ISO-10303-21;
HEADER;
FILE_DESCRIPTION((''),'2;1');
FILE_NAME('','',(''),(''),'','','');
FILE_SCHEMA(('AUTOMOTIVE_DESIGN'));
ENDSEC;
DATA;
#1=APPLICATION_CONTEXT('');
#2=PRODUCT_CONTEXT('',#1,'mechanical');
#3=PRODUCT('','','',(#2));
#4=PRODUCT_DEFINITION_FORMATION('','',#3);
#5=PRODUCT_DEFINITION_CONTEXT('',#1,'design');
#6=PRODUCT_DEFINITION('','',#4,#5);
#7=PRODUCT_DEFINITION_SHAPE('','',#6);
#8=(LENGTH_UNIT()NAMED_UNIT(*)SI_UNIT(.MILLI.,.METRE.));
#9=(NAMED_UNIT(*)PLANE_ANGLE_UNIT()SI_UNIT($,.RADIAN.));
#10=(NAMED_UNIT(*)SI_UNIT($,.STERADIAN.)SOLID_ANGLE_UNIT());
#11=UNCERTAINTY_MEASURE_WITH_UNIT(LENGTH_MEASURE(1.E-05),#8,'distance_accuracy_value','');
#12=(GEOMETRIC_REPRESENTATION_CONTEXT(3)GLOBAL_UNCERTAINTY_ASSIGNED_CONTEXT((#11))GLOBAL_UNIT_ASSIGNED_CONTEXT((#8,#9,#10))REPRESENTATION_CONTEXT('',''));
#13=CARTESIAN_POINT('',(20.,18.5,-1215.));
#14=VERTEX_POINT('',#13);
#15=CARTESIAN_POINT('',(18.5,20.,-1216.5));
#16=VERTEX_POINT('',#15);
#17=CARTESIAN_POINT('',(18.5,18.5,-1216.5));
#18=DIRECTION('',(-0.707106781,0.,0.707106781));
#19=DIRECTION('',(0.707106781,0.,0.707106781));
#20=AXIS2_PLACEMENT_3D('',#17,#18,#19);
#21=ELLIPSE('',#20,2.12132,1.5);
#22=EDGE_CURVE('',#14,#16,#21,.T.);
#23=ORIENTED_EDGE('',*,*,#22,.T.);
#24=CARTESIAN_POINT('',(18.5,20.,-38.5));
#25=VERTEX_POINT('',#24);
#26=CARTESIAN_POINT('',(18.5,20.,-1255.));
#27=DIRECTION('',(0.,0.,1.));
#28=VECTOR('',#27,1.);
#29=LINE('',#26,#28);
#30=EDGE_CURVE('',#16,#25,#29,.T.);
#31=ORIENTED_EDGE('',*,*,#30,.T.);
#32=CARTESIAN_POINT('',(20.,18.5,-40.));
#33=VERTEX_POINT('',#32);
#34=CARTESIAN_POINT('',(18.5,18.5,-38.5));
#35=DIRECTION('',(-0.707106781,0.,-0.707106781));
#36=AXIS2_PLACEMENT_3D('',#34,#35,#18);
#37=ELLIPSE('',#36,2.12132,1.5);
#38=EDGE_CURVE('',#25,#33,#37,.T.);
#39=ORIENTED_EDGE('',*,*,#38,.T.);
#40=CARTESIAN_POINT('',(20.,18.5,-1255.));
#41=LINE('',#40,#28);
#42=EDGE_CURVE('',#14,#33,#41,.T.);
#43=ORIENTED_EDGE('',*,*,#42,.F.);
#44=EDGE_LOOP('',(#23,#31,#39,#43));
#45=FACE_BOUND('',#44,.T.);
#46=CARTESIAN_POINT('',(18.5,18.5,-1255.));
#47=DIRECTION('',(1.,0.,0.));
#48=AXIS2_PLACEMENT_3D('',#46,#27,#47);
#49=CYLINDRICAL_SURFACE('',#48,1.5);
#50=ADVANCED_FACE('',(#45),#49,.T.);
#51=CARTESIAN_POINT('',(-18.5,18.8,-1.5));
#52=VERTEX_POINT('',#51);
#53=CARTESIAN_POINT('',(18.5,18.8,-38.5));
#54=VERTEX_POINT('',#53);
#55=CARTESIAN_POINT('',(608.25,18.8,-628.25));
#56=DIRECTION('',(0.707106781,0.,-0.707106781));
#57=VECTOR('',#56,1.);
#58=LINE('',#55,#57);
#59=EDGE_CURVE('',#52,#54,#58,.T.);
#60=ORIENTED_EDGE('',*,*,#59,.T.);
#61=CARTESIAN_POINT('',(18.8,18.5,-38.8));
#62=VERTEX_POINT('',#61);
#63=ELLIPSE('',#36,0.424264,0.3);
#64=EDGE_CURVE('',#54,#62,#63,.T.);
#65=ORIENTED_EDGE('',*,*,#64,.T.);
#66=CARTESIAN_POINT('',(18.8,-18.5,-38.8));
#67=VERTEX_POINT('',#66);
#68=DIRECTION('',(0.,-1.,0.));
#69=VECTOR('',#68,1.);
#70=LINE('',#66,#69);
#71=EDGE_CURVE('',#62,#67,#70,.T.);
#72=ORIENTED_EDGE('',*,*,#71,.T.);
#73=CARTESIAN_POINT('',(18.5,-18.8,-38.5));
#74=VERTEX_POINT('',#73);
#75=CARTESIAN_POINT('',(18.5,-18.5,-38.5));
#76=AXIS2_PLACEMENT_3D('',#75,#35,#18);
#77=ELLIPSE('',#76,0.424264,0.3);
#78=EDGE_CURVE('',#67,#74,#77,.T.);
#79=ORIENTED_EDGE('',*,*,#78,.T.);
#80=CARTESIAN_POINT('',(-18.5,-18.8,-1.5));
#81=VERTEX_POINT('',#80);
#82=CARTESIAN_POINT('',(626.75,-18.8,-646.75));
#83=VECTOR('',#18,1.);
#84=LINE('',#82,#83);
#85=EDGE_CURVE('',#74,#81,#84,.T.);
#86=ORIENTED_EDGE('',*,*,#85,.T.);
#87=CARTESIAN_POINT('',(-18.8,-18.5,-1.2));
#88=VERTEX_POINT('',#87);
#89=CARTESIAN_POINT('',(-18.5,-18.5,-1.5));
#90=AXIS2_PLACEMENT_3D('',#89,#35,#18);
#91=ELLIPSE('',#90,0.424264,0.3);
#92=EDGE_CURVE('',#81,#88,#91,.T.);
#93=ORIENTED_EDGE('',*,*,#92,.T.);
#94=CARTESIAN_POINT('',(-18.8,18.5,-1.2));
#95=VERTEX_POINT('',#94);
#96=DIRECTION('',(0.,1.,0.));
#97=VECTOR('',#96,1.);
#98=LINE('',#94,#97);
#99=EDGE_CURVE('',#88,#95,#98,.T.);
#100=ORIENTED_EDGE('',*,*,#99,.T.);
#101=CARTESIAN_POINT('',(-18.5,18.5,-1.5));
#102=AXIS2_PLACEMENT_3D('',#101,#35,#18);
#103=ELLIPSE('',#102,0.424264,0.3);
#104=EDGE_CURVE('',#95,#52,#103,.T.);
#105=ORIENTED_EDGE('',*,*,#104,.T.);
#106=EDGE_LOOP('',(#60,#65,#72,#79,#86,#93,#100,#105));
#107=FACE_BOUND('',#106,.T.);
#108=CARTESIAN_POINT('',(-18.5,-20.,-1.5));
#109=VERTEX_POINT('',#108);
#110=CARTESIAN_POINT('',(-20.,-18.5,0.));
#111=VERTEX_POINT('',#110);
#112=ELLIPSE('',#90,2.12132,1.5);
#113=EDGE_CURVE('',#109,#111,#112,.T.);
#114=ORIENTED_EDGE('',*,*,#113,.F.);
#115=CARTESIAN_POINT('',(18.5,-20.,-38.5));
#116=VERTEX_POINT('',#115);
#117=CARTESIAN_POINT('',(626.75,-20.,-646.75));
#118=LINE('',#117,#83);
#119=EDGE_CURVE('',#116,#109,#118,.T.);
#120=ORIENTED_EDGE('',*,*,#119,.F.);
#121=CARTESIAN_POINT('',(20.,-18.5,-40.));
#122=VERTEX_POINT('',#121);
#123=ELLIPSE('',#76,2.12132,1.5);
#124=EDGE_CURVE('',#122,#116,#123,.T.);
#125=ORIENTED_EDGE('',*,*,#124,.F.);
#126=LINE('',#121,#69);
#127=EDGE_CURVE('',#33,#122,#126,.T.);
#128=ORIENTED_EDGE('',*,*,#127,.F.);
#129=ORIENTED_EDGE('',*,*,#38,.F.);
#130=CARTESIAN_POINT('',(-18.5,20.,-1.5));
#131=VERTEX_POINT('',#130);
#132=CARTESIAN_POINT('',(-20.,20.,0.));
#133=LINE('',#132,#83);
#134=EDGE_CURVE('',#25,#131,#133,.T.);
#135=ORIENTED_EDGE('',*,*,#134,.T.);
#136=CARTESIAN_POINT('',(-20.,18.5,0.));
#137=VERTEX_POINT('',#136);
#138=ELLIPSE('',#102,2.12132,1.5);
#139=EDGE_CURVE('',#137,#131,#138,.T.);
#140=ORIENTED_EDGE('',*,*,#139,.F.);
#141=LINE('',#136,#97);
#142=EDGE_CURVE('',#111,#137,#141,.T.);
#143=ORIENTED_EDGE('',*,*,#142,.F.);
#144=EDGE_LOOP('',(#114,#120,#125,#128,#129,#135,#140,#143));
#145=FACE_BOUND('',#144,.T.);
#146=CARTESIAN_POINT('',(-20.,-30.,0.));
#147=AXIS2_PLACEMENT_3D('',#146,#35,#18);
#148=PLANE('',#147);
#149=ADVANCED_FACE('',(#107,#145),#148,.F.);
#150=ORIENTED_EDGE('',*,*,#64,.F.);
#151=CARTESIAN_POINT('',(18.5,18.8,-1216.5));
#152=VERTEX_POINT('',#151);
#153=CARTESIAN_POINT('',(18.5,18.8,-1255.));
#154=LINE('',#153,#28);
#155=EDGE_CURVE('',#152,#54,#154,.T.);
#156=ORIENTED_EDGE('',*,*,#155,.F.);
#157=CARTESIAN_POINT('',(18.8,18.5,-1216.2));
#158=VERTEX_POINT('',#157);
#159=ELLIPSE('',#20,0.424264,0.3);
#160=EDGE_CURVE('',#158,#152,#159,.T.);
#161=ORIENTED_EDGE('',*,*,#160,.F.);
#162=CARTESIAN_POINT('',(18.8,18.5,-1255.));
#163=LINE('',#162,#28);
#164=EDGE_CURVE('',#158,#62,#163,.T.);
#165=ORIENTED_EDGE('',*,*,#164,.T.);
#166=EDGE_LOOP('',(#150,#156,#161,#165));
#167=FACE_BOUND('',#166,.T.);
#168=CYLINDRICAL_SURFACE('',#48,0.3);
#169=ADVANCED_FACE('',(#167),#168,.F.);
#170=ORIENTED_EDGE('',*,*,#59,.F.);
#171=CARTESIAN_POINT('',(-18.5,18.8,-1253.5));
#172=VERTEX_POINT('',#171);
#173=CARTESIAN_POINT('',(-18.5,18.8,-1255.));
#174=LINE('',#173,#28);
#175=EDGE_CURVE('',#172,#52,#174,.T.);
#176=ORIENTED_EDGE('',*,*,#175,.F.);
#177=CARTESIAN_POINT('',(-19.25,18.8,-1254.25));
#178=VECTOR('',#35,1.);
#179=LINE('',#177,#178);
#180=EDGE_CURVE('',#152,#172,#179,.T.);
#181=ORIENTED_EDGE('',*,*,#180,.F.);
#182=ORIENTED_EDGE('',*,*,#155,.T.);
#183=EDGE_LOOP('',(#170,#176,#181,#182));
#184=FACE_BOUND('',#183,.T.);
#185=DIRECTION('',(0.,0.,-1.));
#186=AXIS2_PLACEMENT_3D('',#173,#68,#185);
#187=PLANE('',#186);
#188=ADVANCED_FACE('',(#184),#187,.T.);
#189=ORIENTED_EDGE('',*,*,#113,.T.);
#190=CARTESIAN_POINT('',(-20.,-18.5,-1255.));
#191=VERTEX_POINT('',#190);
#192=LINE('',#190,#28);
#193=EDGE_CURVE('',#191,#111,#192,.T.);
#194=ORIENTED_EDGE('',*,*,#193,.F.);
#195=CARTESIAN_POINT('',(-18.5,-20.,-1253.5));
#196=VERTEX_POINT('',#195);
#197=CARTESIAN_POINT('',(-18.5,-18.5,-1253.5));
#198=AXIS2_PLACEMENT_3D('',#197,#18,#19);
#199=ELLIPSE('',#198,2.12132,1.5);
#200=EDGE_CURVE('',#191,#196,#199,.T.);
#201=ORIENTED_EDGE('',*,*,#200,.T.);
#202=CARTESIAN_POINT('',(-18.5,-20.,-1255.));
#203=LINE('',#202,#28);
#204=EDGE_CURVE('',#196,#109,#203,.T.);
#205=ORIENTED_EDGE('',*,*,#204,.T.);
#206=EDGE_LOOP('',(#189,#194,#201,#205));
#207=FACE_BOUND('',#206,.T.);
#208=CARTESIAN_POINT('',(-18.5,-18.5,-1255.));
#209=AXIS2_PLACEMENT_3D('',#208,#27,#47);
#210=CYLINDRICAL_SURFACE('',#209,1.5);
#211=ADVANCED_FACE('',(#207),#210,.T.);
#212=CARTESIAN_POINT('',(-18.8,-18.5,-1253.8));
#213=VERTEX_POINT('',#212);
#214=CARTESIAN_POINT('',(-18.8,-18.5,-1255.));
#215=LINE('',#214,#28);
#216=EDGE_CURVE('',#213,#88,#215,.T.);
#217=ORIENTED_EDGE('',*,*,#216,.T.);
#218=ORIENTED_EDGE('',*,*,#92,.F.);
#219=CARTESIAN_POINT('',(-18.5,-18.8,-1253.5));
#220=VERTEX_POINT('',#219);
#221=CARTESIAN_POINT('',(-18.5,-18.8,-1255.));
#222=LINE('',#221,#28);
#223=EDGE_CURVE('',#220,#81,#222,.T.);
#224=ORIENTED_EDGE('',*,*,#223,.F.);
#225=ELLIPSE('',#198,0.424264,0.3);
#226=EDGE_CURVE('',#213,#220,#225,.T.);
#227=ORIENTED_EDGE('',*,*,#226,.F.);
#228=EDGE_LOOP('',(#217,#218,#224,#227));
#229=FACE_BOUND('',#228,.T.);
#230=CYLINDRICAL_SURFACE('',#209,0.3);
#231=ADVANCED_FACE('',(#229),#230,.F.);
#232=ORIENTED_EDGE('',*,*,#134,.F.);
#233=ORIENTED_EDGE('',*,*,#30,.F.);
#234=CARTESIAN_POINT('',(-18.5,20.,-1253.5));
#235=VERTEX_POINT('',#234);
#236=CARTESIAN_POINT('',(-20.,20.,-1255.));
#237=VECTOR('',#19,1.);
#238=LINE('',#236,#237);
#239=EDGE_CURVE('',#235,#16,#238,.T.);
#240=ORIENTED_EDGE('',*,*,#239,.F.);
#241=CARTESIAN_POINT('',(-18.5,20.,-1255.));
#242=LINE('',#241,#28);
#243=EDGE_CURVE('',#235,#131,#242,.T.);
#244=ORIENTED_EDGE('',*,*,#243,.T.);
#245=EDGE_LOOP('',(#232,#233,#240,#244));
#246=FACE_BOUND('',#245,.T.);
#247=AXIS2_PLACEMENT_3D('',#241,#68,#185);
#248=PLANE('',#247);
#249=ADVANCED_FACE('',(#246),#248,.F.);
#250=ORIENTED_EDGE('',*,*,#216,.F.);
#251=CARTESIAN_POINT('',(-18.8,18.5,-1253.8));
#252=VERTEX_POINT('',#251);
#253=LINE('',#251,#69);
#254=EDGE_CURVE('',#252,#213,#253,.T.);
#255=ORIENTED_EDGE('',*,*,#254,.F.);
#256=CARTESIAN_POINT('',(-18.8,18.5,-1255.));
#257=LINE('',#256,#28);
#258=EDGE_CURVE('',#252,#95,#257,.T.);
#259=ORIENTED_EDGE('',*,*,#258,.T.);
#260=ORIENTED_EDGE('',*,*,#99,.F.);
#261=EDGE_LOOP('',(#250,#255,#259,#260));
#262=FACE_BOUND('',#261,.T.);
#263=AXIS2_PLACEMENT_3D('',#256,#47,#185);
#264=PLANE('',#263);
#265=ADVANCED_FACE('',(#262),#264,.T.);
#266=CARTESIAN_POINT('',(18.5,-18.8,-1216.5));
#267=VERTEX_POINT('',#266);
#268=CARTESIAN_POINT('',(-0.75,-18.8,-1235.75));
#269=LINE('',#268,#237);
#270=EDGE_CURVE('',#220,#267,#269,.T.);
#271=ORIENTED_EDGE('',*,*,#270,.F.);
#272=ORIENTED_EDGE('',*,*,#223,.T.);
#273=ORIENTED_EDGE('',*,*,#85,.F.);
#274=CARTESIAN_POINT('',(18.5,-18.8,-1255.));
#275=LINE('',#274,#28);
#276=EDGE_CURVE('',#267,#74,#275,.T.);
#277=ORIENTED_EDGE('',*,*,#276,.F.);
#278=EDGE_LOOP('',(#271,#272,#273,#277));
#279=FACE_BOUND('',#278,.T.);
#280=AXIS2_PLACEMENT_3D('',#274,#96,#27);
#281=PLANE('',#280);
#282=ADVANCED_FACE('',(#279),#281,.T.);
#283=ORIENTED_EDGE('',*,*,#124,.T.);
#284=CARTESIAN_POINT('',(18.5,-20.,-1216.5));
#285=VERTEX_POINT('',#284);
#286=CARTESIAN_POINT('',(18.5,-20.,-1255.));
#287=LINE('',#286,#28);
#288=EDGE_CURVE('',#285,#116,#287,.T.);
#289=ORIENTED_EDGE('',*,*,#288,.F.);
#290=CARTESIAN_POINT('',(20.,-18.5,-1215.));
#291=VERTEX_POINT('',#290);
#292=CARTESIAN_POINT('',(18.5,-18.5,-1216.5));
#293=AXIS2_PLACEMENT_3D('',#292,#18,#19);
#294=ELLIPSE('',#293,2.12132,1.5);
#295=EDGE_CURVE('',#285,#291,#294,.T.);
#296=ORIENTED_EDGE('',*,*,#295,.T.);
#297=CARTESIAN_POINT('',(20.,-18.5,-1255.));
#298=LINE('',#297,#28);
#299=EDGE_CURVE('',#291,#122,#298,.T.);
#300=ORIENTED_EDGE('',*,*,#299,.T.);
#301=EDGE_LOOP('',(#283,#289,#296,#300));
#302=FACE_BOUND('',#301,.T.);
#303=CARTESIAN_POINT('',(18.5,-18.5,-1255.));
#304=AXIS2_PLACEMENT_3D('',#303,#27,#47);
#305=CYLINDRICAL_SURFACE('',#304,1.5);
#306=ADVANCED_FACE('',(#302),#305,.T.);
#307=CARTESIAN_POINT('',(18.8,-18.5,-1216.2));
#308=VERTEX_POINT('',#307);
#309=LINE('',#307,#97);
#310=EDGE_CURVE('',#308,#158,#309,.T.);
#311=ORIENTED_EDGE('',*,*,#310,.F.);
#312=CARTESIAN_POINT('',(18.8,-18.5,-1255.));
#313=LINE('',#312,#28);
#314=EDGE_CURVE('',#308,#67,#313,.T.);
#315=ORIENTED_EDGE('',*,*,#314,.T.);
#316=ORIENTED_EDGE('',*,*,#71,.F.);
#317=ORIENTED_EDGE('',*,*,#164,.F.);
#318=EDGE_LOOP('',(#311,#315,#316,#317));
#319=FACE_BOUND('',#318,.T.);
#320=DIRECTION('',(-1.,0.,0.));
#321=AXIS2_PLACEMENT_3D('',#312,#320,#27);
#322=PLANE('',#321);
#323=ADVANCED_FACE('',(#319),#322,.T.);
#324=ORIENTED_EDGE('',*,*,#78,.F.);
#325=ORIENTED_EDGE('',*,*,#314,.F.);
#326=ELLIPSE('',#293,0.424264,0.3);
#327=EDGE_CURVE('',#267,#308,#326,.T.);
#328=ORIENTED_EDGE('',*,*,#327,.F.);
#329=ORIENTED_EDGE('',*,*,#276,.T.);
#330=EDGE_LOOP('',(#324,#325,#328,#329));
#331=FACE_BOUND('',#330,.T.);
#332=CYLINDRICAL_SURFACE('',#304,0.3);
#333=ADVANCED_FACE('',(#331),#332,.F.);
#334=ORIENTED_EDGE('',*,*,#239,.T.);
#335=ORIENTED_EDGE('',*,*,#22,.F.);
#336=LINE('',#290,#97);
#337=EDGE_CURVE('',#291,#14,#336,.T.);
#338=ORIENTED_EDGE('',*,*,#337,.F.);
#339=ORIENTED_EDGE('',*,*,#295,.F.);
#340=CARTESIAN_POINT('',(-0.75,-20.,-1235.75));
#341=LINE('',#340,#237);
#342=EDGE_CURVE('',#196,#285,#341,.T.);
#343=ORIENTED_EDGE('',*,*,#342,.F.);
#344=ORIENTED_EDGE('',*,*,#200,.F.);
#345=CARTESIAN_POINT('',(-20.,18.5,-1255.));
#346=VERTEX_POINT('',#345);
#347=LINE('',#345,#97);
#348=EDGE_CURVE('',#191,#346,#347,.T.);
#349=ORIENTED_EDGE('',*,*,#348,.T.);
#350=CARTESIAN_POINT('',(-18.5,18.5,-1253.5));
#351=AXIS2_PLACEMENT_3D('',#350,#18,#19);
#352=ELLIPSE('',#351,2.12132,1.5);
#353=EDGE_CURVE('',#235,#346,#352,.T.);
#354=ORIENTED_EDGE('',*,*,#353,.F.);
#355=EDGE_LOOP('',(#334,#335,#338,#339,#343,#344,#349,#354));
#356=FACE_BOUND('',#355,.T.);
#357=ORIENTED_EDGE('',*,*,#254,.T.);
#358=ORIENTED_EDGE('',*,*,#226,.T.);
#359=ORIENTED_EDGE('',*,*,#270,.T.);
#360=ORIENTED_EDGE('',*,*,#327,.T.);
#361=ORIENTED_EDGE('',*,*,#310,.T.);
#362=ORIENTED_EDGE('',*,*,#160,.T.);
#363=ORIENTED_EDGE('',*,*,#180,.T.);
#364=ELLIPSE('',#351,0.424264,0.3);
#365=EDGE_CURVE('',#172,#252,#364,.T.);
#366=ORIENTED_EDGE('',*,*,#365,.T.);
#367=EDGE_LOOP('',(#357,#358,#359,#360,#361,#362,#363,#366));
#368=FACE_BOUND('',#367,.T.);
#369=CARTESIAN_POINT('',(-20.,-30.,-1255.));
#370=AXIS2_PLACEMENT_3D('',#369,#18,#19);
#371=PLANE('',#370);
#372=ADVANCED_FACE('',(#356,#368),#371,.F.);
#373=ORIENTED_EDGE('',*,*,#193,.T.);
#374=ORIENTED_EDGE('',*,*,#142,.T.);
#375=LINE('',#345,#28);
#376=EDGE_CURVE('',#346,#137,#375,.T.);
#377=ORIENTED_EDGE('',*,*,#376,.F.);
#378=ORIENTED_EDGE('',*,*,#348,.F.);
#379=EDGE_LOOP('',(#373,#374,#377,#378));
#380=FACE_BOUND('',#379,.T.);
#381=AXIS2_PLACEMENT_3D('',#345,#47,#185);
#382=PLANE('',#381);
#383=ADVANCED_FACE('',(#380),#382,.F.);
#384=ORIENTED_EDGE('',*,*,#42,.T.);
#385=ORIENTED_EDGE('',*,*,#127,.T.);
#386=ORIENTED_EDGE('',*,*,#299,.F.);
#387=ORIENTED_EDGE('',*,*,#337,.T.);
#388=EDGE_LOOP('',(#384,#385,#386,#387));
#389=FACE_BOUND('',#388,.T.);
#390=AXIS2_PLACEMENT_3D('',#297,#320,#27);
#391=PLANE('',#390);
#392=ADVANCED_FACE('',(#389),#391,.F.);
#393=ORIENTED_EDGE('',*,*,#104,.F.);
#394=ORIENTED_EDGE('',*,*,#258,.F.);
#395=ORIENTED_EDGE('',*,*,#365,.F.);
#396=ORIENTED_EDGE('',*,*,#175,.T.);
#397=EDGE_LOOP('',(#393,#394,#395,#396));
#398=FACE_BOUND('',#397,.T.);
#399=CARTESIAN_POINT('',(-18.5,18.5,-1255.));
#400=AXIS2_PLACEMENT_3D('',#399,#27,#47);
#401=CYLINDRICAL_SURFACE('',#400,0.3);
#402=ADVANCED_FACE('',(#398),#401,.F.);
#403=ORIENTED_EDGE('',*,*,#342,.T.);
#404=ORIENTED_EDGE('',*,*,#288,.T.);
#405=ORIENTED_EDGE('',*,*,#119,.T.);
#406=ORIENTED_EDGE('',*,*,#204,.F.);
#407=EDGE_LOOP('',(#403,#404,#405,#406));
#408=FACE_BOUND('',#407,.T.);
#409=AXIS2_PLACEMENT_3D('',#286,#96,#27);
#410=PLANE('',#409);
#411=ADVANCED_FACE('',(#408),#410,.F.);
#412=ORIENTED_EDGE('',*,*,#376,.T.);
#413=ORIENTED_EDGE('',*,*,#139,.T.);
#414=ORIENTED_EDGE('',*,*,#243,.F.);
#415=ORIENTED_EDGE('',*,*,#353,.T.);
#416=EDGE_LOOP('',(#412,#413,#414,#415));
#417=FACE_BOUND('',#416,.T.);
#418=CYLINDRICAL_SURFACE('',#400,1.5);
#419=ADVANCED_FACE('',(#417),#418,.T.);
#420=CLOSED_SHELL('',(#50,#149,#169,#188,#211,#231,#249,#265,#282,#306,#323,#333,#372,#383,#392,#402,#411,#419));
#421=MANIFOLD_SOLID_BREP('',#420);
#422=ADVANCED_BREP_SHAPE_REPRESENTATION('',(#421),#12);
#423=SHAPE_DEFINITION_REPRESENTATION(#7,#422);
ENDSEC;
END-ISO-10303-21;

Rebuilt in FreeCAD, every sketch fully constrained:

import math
import FreeCAD as App
import Part
import Sketcher

V = App.Vector


def add_polygon(sketch, points):
    """Adds a closed chain of lines whose ends are joined by coincident constraints."""
    first, n = sketch.GeometryCount, len(points)
    for a, b in zip(points, points[1:] + points[:1]):
        sketch.addGeometry(Part.LineSegment(App.Vector(*a, 0), App.Vector(*b, 0)), False)
    for i in range(n):
        sketch.addConstraint(Sketcher.Constraint("Coincident", first + i, 2, first + (i + 1) % n, 1))

doc = App.newDocument("Part")
body = doc.addObject("PartDesign::Body", "Body")

# Sketch on XY plane
sketch1 = body.newObject("Sketcher::SketchObject", "Sketch")
sketch1.AttachmentSupport = (doc.getObject("XY_Plane"), [""])
sketch1.MapMode = "FlatFace"
sketch1.addGeometry(Part.LineSegment(V(18.5, -20, 0), V(-18.5, -20, 0)), False)
sketch1.addGeometry(Part.ArcOfCircle(Part.Circle(V(-18.5, -18.5, 0), V(0, 0, 1), 1.5), math.radians(180), math.radians(270)), False)
sketch1.addGeometry(Part.LineSegment(V(-20, -18.5, 0), V(-20, 18.5, 0)), False)
sketch1.addGeometry(Part.ArcOfCircle(Part.Circle(V(-18.5, 18.5, 0), V(0, 0, 1), 1.5), math.radians(90), math.radians(180)), False)
sketch1.addGeometry(Part.LineSegment(V(-18.5, 20, 0), V(18.5, 20, 0)), False)
sketch1.addGeometry(Part.ArcOfCircle(Part.Circle(V(18.5, 18.5, 0), V(0, 0, 1), 1.5), math.radians(0), math.radians(90)), False)
sketch1.addGeometry(Part.LineSegment(V(20, 18.5, 0), V(20, -18.5, 0)), False)
sketch1.addGeometry(Part.ArcOfCircle(Part.Circle(V(18.5, -18.5, 0), V(0, 0, 1), 1.5), math.radians(-90), math.radians(0)), False)
sketch1.addGeometry(Part.LineSegment(V(-18.5, -18.8, 0), V(18.5, -18.8, 0)), False)
sketch1.addGeometry(Part.ArcOfCircle(Part.Circle(V(18.5, -18.5, 0), V(0, 0, 1), 0.3), math.radians(-90), math.radians(0)), False)
sketch1.addGeometry(Part.LineSegment(V(18.8, -18.5, 0), V(18.8, 18.5, 0)), False)
sketch1.addGeometry(Part.ArcOfCircle(Part.Circle(V(18.5, 18.5, 0), V(0, 0, 1), 0.3), math.radians(0), math.radians(90)), False)
sketch1.addGeometry(Part.LineSegment(V(18.5, 18.8, 0), V(-18.5, 18.8, 0)), False)
sketch1.addGeometry(Part.ArcOfCircle(Part.Circle(V(-18.5, 18.5, 0), V(0, 0, 1), 0.3), math.radians(90), math.radians(180)), False)
sketch1.addGeometry(Part.LineSegment(V(-18.8, 18.5, 0), V(-18.8, -18.5, 0)), False)
sketch1.addGeometry(Part.ArcOfCircle(Part.Circle(V(-18.5, -18.5, 0), V(0, 0, 1), 0.3), math.radians(-180), math.radians(-90)), False)
sketch1.addConstraint(Sketcher.Constraint("Tangent", 0, 2, 1, 2))
sketch1.addConstraint(Sketcher.Constraint("Tangent", 1, 1, 2, 1))
sketch1.addConstraint(Sketcher.Constraint("Tangent", 2, 2, 3, 2))
sketch1.addConstraint(Sketcher.Constraint("Tangent", 3, 1, 4, 1))
sketch1.addConstraint(Sketcher.Constraint("Tangent", 4, 2, 5, 2))
sketch1.addConstraint(Sketcher.Constraint("Tangent", 5, 1, 6, 1))
sketch1.addConstraint(Sketcher.Constraint("Tangent", 6, 2, 7, 2))
sketch1.addConstraint(Sketcher.Constraint("Tangent", 7, 1, 0, 1))
sketch1.addConstraint(Sketcher.Constraint("Tangent", 8, 2, 9, 1))
sketch1.addConstraint(Sketcher.Constraint("Tangent", 9, 2, 10, 1))
sketch1.addConstraint(Sketcher.Constraint("Tangent", 10, 2, 11, 1))
sketch1.addConstraint(Sketcher.Constraint("Tangent", 11, 2, 12, 1))
sketch1.addConstraint(Sketcher.Constraint("Tangent", 12, 2, 13, 1))
sketch1.addConstraint(Sketcher.Constraint("Tangent", 13, 2, 14, 1))
sketch1.addConstraint(Sketcher.Constraint("Tangent", 14, 2, 15, 1))
sketch1.addConstraint(Sketcher.Constraint("Tangent", 15, 2, 8, 1))
sketch1.addConstraint(Sketcher.Constraint("Horizontal", 0))
sketch1.addConstraint(Sketcher.Constraint("Vertical", 2))
sketch1.addConstraint(Sketcher.Constraint("Horizontal", 4))
sketch1.addConstraint(Sketcher.Constraint("Vertical", 6))
sketch1.addConstraint(Sketcher.Constraint("Horizontal", 8))
sketch1.addConstraint(Sketcher.Constraint("Vertical", 10))
sketch1.addConstraint(Sketcher.Constraint("Horizontal", 12))
sketch1.addConstraint(Sketcher.Constraint("Vertical", 14))
sketch1.addConstraint(Sketcher.Constraint("Coincident", 9, 3, 7, 3))
sketch1.addConstraint(Sketcher.Constraint("Coincident", 11, 3, 5, 3))
sketch1.addConstraint(Sketcher.Constraint("Coincident", 13, 3, 3, 3))
sketch1.addConstraint(Sketcher.Constraint("Equal", 1, 3))
sketch1.addConstraint(Sketcher.Constraint("Equal", 3, 5))
sketch1.addConstraint(Sketcher.Constraint("Equal", 5, 7))
sketch1.addConstraint(Sketcher.Constraint("Equal", 13, 15))
sketch1.addConstraint(Sketcher.Constraint("Symmetric", 1, 3, 5, 3, -1, 1))
sketch1.addConstraint(Sketcher.Constraint("Equal", 12, 2))
sketch1.addConstraint(Sketcher.Constraint("Radius", 1, 1.5))
sketch1.addConstraint(Sketcher.Constraint("Radius", 9, 0.3))
sketch1.addConstraint(Sketcher.Constraint("DistanceX", 0, 2, 0, 1, 37.0))
pad1 = body.newObject("PartDesign::Pad", "Pad")
pad1.Profile = sketch1
pad1.Length = 1255
pad1.Reversed = True

# Sketch on XZ plane
sketch2 = body.newObject("Sketcher::SketchObject", "Sketch001")
sketch2.AttachmentSupport = (doc.getObject("XZ_Plane"), [""])
sketch2.MapMode = "FlatFace"
sketch2.AttachmentOffset = App.Placement(V(0, 0, -20), App.Rotation())
add_polygon(sketch2, [(-20, -1255), (32, -1203), (32, -1272)])  # lines 0-2
add_polygon(sketch2, [(-20, 0), (32, 17), (32, -52)])  # lines 3-5
sketch2.addConstraint(Sketcher.Constraint("Vertical", 1))
sketch2.addConstraint(Sketcher.Constraint("Vertical", 4))
sketch2.addConstraint(Sketcher.Constraint("PointOnObject", 5, 2, -1))
sketch2.addConstraint(Sketcher.Constraint("Perpendicular", 0, 5))
sketch2.addConstraint(Sketcher.Constraint("Vertical", 1, 2, 3, 2))
sketch2.addConstraint(Sketcher.Constraint("Vertical", 2, 2, 5, 2))
sketch2.addConstraint(Sketcher.Constraint("Equal", 1, 4))
sketch2.addConstraint(Sketcher.Constraint("Equal", 2, 3))
sketch2.addConstraint(Sketcher.Constraint("DistanceX", 2, 2, -1, 1, 20.0))
sketch2.addConstraint(Sketcher.Constraint("DistanceY", 2, 2, -1, 1, 1255.0))
sketch2.addConstraint(Sketcher.Constraint("Distance", 0, 72.93666))
sketch2.addConstraint(Sketcher.Constraint("DistanceY", 1, 2, 1, 1, 68.721435))
pocket1 = body.newObject("PartDesign::Pocket", "Pocket")
pocket1.Profile = sketch2
pocket1.Length = 50
pocket1.Reversed = True

doc.recompute()
